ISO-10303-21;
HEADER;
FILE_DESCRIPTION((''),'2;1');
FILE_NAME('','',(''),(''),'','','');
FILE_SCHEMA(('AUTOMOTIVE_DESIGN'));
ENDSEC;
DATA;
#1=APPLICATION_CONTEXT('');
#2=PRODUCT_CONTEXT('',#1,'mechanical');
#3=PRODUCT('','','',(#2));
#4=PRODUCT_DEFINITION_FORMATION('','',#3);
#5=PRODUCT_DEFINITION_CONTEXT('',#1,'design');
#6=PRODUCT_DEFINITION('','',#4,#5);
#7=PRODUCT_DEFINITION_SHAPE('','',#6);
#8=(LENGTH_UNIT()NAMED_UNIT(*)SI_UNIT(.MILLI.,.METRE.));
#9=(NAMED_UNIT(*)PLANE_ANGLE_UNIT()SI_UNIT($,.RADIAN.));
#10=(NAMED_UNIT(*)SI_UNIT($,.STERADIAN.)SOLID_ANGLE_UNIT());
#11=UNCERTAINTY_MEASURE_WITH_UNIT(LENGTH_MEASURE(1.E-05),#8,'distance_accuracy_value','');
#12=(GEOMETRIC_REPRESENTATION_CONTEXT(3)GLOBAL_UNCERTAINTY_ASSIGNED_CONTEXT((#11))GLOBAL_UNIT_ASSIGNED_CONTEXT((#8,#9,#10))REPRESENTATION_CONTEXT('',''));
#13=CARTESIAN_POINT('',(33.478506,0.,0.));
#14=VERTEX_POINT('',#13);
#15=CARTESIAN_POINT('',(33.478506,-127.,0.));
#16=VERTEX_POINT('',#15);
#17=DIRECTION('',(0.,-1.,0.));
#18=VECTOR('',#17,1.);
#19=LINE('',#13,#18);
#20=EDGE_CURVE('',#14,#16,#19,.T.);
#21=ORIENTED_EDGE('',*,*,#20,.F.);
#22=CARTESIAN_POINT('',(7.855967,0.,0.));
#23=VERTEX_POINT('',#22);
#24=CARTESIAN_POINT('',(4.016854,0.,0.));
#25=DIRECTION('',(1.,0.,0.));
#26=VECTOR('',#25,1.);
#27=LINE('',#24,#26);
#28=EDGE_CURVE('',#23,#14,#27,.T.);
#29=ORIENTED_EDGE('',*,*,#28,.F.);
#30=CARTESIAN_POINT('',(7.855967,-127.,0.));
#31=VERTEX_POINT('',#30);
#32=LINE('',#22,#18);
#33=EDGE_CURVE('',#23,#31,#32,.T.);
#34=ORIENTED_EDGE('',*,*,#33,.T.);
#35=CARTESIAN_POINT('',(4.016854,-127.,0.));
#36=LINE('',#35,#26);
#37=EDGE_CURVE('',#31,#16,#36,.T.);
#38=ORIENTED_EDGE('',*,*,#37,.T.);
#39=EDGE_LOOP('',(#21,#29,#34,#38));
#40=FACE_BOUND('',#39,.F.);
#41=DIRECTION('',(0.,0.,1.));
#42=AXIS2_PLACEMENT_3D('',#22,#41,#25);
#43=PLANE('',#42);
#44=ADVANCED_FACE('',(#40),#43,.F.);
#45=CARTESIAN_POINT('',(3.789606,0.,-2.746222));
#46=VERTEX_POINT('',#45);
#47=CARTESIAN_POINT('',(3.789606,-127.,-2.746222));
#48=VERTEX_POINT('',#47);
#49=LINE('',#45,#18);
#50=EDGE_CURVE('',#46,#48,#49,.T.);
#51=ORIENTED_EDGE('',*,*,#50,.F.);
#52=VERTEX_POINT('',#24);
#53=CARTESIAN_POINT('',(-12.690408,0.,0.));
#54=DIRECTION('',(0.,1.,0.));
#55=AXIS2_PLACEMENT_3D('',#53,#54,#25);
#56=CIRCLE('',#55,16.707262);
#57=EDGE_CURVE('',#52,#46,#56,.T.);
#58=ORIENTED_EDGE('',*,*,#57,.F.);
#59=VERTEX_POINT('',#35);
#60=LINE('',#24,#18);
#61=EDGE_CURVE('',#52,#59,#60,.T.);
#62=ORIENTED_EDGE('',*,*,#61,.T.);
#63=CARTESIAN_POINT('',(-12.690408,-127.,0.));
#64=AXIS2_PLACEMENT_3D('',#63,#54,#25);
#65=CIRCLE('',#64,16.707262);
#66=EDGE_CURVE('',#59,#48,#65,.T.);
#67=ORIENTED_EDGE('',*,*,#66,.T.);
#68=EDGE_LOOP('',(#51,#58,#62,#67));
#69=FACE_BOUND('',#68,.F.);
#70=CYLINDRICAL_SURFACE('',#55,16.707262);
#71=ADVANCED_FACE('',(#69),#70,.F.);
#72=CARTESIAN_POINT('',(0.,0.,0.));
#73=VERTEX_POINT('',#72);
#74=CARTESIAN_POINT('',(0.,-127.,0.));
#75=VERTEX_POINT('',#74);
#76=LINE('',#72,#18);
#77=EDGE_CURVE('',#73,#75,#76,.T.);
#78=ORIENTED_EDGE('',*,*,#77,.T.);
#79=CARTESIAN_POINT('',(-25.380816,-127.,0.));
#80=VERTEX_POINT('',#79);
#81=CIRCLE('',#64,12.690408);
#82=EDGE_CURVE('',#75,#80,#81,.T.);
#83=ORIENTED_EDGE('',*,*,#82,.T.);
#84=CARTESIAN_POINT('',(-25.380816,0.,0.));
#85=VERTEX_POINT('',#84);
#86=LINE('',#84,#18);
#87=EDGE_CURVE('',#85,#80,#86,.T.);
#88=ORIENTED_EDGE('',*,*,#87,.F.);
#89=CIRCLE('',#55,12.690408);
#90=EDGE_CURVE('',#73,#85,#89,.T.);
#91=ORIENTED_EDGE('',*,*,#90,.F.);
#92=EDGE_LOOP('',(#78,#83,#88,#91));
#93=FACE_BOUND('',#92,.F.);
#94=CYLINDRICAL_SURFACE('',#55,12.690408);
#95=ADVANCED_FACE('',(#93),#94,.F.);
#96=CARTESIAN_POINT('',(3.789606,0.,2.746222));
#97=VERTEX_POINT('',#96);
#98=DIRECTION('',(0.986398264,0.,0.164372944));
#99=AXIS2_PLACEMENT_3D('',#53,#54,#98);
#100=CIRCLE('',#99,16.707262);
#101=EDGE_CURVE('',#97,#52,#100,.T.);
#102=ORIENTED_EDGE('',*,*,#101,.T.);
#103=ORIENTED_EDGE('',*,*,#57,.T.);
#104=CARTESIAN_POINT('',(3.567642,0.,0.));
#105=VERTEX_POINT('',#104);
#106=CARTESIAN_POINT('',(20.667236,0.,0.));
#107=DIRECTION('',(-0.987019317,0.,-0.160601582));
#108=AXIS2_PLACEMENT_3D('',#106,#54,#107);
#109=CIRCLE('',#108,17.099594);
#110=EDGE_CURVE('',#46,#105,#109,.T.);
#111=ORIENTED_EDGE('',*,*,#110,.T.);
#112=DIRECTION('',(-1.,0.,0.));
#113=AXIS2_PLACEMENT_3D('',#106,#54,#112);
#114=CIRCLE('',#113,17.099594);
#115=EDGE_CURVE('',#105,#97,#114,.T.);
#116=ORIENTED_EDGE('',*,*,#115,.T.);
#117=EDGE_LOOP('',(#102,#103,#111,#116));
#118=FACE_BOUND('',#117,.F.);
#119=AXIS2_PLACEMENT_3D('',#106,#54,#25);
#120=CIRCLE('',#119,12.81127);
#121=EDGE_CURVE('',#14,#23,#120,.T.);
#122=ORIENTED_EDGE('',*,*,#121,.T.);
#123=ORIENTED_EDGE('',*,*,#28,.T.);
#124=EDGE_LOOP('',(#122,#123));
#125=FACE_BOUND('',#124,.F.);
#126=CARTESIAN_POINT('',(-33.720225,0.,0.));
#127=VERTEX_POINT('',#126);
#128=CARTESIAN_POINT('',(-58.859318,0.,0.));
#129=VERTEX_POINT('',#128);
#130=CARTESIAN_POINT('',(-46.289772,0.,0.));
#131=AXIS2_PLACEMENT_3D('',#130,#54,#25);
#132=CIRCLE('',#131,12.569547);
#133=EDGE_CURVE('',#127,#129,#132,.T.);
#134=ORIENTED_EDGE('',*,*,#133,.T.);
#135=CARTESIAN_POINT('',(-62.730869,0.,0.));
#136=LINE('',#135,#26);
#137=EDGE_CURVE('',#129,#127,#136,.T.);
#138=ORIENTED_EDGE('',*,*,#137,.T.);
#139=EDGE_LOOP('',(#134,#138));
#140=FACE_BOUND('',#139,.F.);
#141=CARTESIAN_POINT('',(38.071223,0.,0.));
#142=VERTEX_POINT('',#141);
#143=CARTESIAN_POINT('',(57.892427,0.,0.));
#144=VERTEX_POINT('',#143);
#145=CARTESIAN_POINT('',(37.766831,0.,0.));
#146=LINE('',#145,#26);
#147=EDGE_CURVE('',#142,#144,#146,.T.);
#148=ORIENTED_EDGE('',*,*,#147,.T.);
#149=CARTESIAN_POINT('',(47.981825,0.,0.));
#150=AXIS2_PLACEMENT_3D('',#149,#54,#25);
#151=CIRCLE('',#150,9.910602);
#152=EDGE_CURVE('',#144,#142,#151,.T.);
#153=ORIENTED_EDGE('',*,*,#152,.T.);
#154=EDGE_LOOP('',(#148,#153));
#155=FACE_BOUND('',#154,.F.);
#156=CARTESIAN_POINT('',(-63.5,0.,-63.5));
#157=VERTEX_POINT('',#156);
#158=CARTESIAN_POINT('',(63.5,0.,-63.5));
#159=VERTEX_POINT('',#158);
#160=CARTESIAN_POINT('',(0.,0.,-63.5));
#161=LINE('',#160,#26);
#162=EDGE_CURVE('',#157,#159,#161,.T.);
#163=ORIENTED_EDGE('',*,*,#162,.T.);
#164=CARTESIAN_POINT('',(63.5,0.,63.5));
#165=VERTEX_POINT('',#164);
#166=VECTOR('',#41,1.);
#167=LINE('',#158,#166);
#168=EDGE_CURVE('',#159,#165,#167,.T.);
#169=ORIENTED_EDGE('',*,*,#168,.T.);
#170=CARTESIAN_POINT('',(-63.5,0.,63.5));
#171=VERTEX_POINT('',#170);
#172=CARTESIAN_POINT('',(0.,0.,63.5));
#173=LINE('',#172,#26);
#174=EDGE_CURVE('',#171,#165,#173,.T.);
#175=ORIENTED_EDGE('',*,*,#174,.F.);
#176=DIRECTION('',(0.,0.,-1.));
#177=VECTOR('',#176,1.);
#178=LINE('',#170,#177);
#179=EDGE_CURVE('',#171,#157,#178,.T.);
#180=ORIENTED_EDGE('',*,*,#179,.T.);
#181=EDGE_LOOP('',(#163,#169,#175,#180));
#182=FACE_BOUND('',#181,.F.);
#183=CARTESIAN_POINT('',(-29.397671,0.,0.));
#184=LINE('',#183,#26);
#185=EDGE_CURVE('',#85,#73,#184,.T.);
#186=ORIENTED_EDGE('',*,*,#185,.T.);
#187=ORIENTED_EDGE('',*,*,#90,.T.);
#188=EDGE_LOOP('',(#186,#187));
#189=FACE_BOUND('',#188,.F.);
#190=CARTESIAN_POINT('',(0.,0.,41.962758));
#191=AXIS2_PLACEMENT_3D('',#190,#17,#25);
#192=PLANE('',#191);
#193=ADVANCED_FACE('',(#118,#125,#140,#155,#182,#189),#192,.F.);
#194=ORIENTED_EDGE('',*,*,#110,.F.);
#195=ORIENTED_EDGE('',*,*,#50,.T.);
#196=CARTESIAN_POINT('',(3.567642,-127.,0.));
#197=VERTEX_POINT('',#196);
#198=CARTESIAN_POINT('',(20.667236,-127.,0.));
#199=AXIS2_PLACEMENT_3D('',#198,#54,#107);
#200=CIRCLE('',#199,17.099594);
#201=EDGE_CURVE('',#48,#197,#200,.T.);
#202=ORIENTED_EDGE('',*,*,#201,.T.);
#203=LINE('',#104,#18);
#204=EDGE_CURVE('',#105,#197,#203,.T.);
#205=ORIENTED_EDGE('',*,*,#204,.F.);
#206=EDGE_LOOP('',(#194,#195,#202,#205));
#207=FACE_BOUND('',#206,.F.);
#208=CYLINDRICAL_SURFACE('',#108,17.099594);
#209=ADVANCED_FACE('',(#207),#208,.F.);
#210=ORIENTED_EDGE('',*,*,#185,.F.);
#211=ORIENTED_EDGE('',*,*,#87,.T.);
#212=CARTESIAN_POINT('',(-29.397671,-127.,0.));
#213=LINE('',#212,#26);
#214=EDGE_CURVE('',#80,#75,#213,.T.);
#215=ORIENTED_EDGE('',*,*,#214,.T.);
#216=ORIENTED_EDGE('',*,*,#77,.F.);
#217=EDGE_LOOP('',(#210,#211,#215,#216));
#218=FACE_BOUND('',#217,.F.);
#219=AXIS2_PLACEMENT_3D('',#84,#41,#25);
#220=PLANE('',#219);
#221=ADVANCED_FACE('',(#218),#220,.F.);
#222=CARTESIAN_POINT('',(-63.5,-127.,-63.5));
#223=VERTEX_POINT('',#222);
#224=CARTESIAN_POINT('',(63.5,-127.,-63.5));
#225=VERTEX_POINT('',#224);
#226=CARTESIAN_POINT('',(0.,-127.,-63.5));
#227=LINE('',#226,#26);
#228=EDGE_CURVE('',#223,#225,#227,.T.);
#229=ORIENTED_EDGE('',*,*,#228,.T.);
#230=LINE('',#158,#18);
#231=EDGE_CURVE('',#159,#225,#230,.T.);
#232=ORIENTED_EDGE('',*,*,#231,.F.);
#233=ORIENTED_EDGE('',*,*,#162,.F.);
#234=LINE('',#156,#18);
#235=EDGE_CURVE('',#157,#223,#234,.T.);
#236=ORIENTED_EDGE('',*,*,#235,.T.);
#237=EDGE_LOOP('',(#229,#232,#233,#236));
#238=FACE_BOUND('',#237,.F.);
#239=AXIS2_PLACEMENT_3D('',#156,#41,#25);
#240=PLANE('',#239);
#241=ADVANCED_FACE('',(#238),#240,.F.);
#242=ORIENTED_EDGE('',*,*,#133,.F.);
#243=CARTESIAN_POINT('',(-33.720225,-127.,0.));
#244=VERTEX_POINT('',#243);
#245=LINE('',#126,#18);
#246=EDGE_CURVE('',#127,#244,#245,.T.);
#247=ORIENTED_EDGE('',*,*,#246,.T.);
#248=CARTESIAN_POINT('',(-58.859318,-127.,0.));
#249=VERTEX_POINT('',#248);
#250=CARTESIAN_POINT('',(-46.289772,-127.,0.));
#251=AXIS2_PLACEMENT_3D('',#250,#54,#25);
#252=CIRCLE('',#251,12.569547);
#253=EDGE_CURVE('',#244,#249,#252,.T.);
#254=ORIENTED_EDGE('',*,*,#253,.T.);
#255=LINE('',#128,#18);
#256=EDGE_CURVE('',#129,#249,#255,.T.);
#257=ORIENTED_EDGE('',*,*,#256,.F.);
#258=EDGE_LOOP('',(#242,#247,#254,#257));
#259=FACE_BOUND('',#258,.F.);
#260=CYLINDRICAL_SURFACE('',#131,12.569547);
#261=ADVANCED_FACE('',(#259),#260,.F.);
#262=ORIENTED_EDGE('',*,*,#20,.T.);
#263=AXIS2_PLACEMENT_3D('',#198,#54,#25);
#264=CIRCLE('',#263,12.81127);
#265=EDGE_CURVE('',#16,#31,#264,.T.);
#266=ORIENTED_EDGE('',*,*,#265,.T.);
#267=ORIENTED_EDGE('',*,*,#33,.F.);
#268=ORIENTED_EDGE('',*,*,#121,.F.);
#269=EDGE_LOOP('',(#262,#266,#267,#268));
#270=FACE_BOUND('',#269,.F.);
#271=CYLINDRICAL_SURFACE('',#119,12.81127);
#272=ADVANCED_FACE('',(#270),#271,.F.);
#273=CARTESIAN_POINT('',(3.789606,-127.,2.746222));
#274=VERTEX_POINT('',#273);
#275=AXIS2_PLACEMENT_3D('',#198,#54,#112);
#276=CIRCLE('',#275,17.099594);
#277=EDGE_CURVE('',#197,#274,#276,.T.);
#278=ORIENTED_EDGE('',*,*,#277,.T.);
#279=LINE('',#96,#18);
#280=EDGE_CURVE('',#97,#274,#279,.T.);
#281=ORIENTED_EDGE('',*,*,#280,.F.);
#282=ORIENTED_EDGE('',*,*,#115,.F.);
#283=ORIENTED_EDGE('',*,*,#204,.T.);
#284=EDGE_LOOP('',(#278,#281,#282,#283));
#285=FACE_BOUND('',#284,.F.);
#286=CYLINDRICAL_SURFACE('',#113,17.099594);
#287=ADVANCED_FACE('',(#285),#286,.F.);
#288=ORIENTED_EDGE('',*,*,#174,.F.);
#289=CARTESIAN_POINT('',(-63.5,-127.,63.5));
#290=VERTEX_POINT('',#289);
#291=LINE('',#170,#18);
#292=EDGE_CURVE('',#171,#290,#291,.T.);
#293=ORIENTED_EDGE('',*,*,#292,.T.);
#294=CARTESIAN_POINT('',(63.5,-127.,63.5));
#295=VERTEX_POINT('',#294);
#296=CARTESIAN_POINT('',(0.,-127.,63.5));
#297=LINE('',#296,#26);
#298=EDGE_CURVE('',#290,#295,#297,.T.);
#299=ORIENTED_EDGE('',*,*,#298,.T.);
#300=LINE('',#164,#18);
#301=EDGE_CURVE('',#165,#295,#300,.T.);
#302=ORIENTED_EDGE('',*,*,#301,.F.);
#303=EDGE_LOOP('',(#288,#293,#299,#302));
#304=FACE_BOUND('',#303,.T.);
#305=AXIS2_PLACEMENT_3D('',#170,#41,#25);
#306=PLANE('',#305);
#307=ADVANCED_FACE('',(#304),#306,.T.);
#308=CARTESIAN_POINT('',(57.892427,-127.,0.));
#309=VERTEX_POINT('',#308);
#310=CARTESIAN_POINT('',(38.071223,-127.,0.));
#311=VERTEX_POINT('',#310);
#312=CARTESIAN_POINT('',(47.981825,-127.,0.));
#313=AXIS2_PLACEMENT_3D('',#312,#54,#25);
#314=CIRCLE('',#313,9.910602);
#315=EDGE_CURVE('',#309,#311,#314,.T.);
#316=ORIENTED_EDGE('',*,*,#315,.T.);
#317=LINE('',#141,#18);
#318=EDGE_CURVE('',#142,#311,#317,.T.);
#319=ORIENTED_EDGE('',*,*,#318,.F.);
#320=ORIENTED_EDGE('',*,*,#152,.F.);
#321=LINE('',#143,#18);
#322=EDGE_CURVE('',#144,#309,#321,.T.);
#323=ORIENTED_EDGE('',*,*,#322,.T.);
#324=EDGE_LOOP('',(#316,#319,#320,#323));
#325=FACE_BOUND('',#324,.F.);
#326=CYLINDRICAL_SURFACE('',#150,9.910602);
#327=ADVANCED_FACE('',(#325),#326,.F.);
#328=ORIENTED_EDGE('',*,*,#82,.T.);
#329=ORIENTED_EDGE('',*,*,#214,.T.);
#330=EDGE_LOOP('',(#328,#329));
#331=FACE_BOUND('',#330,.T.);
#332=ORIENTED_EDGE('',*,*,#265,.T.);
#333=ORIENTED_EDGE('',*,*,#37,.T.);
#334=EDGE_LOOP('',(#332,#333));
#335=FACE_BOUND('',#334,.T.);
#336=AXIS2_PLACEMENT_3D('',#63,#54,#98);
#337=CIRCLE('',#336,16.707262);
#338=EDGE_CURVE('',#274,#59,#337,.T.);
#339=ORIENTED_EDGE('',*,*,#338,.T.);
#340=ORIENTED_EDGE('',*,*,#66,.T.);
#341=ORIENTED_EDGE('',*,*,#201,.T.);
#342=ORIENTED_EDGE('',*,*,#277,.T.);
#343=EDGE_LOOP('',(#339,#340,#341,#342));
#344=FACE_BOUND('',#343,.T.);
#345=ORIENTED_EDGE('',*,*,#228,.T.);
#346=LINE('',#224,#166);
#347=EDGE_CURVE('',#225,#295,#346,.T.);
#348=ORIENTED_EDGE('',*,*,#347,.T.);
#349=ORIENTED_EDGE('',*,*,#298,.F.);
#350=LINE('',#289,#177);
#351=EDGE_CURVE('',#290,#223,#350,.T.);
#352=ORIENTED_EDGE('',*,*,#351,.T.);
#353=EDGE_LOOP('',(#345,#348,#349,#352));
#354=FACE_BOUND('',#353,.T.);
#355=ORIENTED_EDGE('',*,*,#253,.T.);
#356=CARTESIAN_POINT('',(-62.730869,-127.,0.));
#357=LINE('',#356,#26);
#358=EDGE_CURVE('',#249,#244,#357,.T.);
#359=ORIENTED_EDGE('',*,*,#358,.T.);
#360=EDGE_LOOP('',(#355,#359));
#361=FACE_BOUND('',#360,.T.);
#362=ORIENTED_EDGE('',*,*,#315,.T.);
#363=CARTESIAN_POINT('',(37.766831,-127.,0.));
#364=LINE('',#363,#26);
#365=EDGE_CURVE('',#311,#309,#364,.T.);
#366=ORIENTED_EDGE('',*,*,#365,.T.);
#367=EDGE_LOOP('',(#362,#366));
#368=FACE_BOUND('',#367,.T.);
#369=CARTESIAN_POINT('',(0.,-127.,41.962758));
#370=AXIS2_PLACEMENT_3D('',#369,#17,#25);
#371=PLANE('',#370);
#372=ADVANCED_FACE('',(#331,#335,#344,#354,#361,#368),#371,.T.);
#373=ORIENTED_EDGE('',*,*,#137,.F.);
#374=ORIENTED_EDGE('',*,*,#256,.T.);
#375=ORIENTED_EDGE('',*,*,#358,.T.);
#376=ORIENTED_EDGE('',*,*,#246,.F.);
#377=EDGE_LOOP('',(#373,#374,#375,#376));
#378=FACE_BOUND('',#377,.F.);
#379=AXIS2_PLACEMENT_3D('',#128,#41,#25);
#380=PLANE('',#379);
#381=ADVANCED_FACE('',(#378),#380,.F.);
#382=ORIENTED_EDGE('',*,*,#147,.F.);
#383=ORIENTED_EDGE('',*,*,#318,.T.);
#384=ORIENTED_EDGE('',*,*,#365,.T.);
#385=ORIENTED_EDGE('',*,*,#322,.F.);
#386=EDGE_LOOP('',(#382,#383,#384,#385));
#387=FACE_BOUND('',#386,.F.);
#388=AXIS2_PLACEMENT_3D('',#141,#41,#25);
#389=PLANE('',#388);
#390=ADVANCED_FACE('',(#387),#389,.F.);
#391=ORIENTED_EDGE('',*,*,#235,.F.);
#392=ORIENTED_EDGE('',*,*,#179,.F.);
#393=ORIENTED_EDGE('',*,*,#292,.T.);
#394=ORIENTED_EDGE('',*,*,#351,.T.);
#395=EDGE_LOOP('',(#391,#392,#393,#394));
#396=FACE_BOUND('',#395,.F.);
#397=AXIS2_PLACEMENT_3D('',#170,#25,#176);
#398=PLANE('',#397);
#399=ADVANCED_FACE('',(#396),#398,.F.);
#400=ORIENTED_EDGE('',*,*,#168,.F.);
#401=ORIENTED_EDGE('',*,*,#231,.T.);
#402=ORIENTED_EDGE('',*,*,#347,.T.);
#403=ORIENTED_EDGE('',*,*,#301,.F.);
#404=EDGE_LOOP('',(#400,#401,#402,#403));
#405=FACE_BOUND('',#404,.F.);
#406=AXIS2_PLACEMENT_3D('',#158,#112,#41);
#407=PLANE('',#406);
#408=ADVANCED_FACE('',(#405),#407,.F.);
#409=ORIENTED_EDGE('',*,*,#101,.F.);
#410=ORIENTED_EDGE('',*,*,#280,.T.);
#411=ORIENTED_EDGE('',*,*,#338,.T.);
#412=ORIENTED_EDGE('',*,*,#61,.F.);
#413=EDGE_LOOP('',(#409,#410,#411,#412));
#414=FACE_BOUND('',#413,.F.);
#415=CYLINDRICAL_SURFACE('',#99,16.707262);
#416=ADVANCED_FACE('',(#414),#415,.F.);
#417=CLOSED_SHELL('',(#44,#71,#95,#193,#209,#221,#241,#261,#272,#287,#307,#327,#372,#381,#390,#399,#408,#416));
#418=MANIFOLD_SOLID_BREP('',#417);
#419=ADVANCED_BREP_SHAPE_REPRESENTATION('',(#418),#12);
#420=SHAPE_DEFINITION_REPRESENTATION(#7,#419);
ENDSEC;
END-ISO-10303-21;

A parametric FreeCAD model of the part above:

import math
import FreeCAD as App
import Part
import Sketcher
from FreeCAD import Vector
Q = App.Units.Quantity


def add_polygon(sketch, points):
    """Adds a closed chain of lines whose ends are joined by coincident constraints."""
    first, n = sketch.GeometryCount, len(points)
    for a, b in zip(points, points[1:] + points[:1]):
        sketch.addGeometry(Part.LineSegment(App.Vector(*a, 0), App.Vector(*b, 0)), False)
    for i in range(n):
        sketch.addConstraint(Sketcher.Constraint("Coincident", first + i, 2, first + (i + 1) % n, 1))

doc = App.newDocument("Part")
body = doc.addObject("PartDesign::Body", "Body")

sketch1 = body.newObject("Sketcher::SketchObject", "Sketch")
sketch1.AttachmentSupport = (doc.getObject("XZ_Plane"), [""])
sketch1.MapMode = "FlatFace"
add_polygon(sketch1, [(-63.5, 63.5), (-63.5, -63.5), (63.5, -63.5), (63.5, 63.5)])
sketch1.addGeometry(Part.LineSegment(Vector(-58.859318, 0, 0), Vector(-33.720225, 0, 0)), False)
sketch1.addGeometry(Part.ArcOfCircle(Part.Circle(Vector(-46.289772, 0, 0), Vector(0, 0, 1), 12.569547), math.radians(180), math.radians(360)), False)
sketch1.addGeometry(Part.ArcOfCircle(Part.Circle(Vector(-12.690408, 0, 0), Vector(0, 0, 1), 12.690408), math.radians(180), math.radians(360)), False)
sketch1.addGeometry(Part.LineSegment(Vector(-25.380816, 0, 0), Vector(0, 0, 0)), False)
sketch1.addGeometry(Part.LineSegment(Vector(7.855967, 0, 0), Vector(33.478506, 0, 0)), False)
sketch1.addGeometry(Part.ArcOfCircle(Part.Circle(Vector(20.667236, 0, 0), Vector(0, 0, 1), 12.81127), math.radians(180), math.radians(360)), False)
sketch1.addGeometry(Part.ArcOfCircle(Part.Circle(Vector(20.667236, 0, 0), Vector(0, 0, 1), 17.099594), math.radians(180), math.radians(189.241816)), False)
sketch1.addGeometry(Part.ArcOfCircle(Part.Circle(Vector(20.667236, 0, 0), Vector(0, 0, 1), 17.099594), math.radians(170.758184), math.radians(180)), False)
sketch1.addGeometry(Part.ArcOfCircle(Part.Circle(Vector(-12.690408, 0, 0), Vector(0, 0, 1), 16.707262), math.radians(0), math.radians(9.460809)), False)
sketch1.addGeometry(Part.ArcOfCircle(Part.Circle(Vector(-12.690408, 0, 0), Vector(0, 0, 1), 16.707262), math.radians(-9.460809), math.radians(0)), False)
sketch1.addGeometry(Part.LineSegment(Vector(38.071223, 0, 0), Vector(57.892427, 0, 0)), False)
sketch1.addGeometry(Part.ArcOfCircle(Part.Circle(Vector(47.981825, 0, 0), Vector(0, 0, 1), 9.910602), math.radians(180), math.radians(360)), False)
sketch1.addConstraint([
    Sketcher.Constraint("Coincident", 4, 1, 5, 1),
    Sketcher.Constraint("Coincident", 5, 2, 4, 2),
    Sketcher.Constraint("Coincident", 6, 1, 7, 1),
    Sketcher.Constraint("Coincident", 7, 2, 6, 2),
    Sketcher.Constraint("Coincident", 8, 1, 9, 1),
    Sketcher.Constraint("Coincident", 9, 2, 8, 2),
    Sketcher.Constraint("Tangent", 10, 1, 11, 2),
    Sketcher.Constraint("Coincident", 11, 1, 12, 2),
    Sketcher.Constraint("Tangent", 12, 1, 13, 2),
    Sketcher.Constraint("Coincident", 13, 1, 10, 2),
    Sketcher.Constraint("Coincident", 14, 1, 15, 1),
    Sketcher.Constraint("Coincident", 15, 2, 14, 2),
    Sketcher.Constraint("Vertical", 0),
    Sketcher.Constraint("Horizontal", 1),
    Sketcher.Constraint("Vertical", 2),
    Sketcher.Constraint("Horizontal", 3),
    Sketcher.Constraint("Horizontal", 4),
    Sketcher.Constraint("Horizontal", 7),
    Sketcher.Constraint("Horizontal", 8),
    Sketcher.Constraint("Horizontal", 14),
    Sketcher.Constraint("Coincident", 7, 2, -1, 1),
    Sketcher.Constraint("Coincident", 10, 3, 9, 3),
    Sketcher.Constraint("Coincident", 12, 3, 6, 3),
    Sketcher.Constraint("Equal", 10, 11),
    Sketcher.Constraint("Equal", 12, 13),
    Sketcher.Constraint("Symmetric", 0, 2, 2, 2, -1, 1),
    Sketcher.Constraint("Symmetric", 11, 1, 13, 1, -1),
    Sketcher.Constraint("PointOnObject", 5, 3, -1),
    Sketcher.Constraint("PointOnObject", 15, 3, -1),
    Sketcher.Constraint("PointOnObject", 4, 1, -1),
    Sketcher.Constraint("PointOnObject", 8, 1, -1),
    Sketcher.Constraint("PointOnObject", 10, 1, -1),
    Sketcher.Constraint("PointOnObject", 12, 1, -1),
    Sketcher.Constraint("PointOnObject", 14, 1, -1),
    Sketcher.Constraint("Equal", 3, 0),
    Sketcher.Constraint("DistanceX", 1, 1, 1, 2, Q("5 in")),
    Sketcher.Constraint("Radius", 6, Q("12.690408 mm")),
    Sketcher.Constraint("Radius", 9, Q("12.81127 mm")),
    Sketcher.Constraint("Radius", 5, Q("12.569547 mm")),
    Sketcher.Constraint("Radius", 10, Q("17.099594 mm")),
    Sketcher.Constraint("Radius", 12, Q("16.707262 mm")),
    Sketcher.Constraint("Radius", 15, Q("9.910602 mm")),
    Sketcher.Constraint("DistanceX", 5, 3, -1, 1, Q("46.289772 mm")),
    Sketcher.Constraint("DistanceY", -1, 1, 11, 1, Q("2.746222 mm")),
    Sketcher.Constraint("DistanceX", 10, 3, 15, 3, Q("27.314588 mm")),
])
pad1 = body.newObject("PartDesign::Pad", "Pad")
pad1.Profile = sketch1
pad1.Length = Q("5 in")

doc.recompute()
